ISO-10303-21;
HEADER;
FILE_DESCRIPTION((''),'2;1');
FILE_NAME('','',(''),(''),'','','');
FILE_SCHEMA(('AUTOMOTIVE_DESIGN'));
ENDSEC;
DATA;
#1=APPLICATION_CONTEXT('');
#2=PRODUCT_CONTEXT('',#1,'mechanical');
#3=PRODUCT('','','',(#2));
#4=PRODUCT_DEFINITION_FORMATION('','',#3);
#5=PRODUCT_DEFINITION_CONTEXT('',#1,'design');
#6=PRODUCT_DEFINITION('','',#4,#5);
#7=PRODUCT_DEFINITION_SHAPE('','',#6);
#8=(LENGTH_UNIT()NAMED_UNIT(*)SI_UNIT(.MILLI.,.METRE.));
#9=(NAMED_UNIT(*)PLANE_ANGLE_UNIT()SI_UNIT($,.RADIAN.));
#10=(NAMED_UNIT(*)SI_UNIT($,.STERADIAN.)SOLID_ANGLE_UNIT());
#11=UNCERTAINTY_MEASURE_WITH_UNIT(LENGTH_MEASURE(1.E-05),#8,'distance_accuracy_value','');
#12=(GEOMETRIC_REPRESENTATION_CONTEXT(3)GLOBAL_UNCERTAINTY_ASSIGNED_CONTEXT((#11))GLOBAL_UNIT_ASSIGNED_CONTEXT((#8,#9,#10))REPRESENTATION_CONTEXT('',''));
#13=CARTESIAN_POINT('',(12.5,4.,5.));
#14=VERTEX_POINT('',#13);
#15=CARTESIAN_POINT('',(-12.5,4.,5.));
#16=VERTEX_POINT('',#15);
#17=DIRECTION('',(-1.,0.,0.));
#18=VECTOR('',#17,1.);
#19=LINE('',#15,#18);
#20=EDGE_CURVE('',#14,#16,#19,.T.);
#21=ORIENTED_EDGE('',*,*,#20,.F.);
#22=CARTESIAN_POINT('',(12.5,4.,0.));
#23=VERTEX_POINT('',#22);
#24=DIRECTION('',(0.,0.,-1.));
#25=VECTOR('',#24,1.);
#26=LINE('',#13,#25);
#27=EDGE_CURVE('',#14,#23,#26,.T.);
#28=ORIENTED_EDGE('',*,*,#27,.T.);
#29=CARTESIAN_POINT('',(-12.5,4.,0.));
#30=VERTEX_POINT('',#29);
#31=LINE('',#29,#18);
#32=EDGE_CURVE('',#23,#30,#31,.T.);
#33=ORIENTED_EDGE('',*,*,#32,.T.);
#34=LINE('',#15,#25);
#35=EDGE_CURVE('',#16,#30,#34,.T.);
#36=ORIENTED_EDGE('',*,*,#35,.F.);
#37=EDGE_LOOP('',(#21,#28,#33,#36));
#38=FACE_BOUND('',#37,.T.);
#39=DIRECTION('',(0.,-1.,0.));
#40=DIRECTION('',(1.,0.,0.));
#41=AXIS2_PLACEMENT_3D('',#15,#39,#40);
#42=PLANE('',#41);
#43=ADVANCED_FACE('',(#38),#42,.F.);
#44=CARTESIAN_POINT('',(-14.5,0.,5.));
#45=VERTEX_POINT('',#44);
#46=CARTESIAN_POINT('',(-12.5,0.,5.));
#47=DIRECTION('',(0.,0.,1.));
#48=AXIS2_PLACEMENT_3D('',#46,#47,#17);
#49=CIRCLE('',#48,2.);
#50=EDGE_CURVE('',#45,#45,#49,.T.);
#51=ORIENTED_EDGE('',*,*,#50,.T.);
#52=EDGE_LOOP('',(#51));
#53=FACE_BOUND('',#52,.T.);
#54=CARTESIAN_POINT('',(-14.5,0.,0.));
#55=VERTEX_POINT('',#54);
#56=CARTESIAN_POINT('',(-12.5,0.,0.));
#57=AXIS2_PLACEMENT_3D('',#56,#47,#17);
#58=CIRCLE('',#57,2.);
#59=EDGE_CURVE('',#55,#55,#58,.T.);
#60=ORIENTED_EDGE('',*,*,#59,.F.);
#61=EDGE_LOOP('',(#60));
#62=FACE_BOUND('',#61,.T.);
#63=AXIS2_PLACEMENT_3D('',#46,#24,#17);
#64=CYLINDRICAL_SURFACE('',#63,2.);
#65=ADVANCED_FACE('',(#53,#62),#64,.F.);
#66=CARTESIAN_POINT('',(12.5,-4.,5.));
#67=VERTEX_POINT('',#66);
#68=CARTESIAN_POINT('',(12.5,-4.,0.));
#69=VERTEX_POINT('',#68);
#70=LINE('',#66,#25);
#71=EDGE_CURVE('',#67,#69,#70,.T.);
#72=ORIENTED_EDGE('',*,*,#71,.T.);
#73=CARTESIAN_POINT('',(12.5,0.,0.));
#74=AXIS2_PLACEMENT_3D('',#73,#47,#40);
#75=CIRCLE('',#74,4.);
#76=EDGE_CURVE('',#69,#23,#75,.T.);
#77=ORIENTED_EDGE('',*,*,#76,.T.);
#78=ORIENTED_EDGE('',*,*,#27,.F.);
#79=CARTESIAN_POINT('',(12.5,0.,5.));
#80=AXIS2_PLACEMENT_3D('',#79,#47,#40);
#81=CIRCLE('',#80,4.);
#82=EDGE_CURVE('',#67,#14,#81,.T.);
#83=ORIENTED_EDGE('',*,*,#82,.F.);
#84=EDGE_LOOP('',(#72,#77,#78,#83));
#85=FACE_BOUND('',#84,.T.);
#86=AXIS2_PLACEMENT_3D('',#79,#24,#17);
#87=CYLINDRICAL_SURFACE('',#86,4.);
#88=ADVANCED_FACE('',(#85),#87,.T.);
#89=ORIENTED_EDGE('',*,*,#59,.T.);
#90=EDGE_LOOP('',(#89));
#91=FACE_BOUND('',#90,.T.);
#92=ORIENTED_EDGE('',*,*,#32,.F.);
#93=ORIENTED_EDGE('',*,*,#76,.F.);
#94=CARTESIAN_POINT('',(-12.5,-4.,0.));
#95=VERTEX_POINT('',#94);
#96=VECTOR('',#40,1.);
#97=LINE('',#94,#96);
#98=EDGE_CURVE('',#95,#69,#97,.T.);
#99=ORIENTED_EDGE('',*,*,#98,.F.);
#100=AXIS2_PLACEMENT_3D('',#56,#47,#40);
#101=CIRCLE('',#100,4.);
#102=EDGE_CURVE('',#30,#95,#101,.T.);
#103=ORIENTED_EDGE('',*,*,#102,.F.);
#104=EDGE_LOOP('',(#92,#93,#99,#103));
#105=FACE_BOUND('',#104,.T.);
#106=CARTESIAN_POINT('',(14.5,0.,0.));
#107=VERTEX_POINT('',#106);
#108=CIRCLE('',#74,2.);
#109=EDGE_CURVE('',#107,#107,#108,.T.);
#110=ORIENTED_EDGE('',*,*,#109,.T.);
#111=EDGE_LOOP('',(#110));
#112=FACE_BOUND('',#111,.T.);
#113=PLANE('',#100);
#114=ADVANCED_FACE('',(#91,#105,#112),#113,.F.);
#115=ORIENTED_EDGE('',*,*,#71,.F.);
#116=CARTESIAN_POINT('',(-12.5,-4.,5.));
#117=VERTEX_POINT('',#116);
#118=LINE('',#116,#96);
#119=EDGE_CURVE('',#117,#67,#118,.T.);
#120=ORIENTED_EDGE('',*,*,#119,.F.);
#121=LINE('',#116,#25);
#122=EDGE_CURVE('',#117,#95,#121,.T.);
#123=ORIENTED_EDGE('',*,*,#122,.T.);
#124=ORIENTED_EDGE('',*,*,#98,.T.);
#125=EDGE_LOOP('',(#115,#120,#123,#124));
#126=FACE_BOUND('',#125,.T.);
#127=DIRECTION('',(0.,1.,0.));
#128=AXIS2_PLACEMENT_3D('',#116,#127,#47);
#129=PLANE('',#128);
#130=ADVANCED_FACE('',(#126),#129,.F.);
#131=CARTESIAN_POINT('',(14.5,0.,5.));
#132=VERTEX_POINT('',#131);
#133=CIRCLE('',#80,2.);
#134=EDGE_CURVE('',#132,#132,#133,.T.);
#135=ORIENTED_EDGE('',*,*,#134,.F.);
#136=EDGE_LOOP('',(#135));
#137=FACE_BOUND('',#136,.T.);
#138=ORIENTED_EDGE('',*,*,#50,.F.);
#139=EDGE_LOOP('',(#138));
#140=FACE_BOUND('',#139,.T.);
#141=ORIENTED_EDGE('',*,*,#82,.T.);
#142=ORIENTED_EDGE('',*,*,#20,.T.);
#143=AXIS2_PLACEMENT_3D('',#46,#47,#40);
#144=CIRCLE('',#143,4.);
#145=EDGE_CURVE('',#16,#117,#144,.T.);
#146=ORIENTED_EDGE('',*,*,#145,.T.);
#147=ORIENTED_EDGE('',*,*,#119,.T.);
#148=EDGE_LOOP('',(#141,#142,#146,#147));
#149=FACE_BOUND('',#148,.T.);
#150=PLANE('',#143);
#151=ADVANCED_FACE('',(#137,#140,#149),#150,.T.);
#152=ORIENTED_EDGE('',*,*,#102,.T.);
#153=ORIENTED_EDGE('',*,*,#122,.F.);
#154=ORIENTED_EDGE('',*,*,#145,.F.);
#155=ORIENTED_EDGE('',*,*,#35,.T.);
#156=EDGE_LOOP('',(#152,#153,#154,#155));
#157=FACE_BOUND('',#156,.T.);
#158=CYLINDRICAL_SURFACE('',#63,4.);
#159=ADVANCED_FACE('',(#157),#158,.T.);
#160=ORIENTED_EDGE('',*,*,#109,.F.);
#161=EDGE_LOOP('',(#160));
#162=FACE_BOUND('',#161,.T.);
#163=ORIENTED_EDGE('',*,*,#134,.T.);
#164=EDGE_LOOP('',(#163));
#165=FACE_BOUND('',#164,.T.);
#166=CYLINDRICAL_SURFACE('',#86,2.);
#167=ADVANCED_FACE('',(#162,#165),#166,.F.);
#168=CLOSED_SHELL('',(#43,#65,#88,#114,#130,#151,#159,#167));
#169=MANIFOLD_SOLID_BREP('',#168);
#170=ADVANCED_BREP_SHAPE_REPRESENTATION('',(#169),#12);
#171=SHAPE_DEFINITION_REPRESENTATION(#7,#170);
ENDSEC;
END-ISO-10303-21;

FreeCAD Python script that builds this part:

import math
import FreeCAD as App
import Part
import Sketcher
Q = App.Units.Quantity

doc = App.newDocument("Part")
body = doc.addObject("PartDesign::Body", "Body")

sketch1 = doc.addObject("Sketcher::SketchObject", "Sketch")
body.addObject(sketch1)
sketch1.AttachmentSupport = (doc.XY_Plane, [""])
sketch1.MapMode = "FlatFace"
sketch1.addGeometry(Part.LineSegment(App.Vector(12.5, 4, 0), App.Vector(-12.5, 4, 0)), False)
sketch1.addGeometry(Part.ArcOfCircle(Part.Circle(App.Vector(-12.5, 0, 0), App.Vector(0, 0, 1), 4), math.radians(90), math.radians(270)), False)
sketch1.addGeometry(Part.LineSegment(App.Vector(-12.5, -4, 0), App.Vector(12.5, -4, 0)), False)
sketch1.addGeometry(Part.ArcOfCircle(Part.Circle(App.Vector(12.5, 0, 0), App.Vector(0, 0, 1), 4), math.radians(-90), math.radians(90)), False)
sketch1.addGeometry(Part.Circle(App.Vector(12.5, 0, 0), App.Vector(0, 0, 1), 2), False)
sketch1.addGeometry(Part.Circle(App.Vector(-12.5, 0, 0), App.Vector(0, 0, 1), 2), False)
sketch1.addConstraint(Sketcher.Constraint("Tangent", 0, 2, 1, 1))
sketch1.addConstraint(Sketcher.Constraint("Tangent", 1, 2, 2, 1))
sketch1.addConstraint(Sketcher.Constraint("Tangent", 2, 2, 3, 1))
sketch1.addConstraint(Sketcher.Constraint("Tangent", 3, 2, 0, 1))
sketch1.addConstraint(Sketcher.Constraint("Horizontal", 0))
sketch1.addConstraint(Sketcher.Constraint("Horizontal", 2))
sketch1.addConstraint(Sketcher.Constraint("Coincident", 4, 3, 3, 3))
sketch1.addConstraint(Sketcher.Constraint("Coincident", 5, 3, 1, 3))
sketch1.addConstraint(Sketcher.Constraint("Equal", 4, 5))
sketch1.addConstraint(Sketcher.Constraint("Symmetric", 1, 3, 3, 3, -1, 1))
sketch1.addConstraint(Sketcher.Constraint("Diameter", 4, Q("4 mm")))
sketch1.addConstraint(Sketcher.Constraint("Radius", 1, Q("4 mm")))
sketch1.addConstraint(Sketcher.Constraint("DistanceX", 0, 2, 0, 1, Q("25 mm")))
pad1 = doc.addObject("PartDesign::Pad", "Pad")
body.addObject(pad1)
pad1.Profile = sketch1
pad1.Length = 5

doc.recompute()
